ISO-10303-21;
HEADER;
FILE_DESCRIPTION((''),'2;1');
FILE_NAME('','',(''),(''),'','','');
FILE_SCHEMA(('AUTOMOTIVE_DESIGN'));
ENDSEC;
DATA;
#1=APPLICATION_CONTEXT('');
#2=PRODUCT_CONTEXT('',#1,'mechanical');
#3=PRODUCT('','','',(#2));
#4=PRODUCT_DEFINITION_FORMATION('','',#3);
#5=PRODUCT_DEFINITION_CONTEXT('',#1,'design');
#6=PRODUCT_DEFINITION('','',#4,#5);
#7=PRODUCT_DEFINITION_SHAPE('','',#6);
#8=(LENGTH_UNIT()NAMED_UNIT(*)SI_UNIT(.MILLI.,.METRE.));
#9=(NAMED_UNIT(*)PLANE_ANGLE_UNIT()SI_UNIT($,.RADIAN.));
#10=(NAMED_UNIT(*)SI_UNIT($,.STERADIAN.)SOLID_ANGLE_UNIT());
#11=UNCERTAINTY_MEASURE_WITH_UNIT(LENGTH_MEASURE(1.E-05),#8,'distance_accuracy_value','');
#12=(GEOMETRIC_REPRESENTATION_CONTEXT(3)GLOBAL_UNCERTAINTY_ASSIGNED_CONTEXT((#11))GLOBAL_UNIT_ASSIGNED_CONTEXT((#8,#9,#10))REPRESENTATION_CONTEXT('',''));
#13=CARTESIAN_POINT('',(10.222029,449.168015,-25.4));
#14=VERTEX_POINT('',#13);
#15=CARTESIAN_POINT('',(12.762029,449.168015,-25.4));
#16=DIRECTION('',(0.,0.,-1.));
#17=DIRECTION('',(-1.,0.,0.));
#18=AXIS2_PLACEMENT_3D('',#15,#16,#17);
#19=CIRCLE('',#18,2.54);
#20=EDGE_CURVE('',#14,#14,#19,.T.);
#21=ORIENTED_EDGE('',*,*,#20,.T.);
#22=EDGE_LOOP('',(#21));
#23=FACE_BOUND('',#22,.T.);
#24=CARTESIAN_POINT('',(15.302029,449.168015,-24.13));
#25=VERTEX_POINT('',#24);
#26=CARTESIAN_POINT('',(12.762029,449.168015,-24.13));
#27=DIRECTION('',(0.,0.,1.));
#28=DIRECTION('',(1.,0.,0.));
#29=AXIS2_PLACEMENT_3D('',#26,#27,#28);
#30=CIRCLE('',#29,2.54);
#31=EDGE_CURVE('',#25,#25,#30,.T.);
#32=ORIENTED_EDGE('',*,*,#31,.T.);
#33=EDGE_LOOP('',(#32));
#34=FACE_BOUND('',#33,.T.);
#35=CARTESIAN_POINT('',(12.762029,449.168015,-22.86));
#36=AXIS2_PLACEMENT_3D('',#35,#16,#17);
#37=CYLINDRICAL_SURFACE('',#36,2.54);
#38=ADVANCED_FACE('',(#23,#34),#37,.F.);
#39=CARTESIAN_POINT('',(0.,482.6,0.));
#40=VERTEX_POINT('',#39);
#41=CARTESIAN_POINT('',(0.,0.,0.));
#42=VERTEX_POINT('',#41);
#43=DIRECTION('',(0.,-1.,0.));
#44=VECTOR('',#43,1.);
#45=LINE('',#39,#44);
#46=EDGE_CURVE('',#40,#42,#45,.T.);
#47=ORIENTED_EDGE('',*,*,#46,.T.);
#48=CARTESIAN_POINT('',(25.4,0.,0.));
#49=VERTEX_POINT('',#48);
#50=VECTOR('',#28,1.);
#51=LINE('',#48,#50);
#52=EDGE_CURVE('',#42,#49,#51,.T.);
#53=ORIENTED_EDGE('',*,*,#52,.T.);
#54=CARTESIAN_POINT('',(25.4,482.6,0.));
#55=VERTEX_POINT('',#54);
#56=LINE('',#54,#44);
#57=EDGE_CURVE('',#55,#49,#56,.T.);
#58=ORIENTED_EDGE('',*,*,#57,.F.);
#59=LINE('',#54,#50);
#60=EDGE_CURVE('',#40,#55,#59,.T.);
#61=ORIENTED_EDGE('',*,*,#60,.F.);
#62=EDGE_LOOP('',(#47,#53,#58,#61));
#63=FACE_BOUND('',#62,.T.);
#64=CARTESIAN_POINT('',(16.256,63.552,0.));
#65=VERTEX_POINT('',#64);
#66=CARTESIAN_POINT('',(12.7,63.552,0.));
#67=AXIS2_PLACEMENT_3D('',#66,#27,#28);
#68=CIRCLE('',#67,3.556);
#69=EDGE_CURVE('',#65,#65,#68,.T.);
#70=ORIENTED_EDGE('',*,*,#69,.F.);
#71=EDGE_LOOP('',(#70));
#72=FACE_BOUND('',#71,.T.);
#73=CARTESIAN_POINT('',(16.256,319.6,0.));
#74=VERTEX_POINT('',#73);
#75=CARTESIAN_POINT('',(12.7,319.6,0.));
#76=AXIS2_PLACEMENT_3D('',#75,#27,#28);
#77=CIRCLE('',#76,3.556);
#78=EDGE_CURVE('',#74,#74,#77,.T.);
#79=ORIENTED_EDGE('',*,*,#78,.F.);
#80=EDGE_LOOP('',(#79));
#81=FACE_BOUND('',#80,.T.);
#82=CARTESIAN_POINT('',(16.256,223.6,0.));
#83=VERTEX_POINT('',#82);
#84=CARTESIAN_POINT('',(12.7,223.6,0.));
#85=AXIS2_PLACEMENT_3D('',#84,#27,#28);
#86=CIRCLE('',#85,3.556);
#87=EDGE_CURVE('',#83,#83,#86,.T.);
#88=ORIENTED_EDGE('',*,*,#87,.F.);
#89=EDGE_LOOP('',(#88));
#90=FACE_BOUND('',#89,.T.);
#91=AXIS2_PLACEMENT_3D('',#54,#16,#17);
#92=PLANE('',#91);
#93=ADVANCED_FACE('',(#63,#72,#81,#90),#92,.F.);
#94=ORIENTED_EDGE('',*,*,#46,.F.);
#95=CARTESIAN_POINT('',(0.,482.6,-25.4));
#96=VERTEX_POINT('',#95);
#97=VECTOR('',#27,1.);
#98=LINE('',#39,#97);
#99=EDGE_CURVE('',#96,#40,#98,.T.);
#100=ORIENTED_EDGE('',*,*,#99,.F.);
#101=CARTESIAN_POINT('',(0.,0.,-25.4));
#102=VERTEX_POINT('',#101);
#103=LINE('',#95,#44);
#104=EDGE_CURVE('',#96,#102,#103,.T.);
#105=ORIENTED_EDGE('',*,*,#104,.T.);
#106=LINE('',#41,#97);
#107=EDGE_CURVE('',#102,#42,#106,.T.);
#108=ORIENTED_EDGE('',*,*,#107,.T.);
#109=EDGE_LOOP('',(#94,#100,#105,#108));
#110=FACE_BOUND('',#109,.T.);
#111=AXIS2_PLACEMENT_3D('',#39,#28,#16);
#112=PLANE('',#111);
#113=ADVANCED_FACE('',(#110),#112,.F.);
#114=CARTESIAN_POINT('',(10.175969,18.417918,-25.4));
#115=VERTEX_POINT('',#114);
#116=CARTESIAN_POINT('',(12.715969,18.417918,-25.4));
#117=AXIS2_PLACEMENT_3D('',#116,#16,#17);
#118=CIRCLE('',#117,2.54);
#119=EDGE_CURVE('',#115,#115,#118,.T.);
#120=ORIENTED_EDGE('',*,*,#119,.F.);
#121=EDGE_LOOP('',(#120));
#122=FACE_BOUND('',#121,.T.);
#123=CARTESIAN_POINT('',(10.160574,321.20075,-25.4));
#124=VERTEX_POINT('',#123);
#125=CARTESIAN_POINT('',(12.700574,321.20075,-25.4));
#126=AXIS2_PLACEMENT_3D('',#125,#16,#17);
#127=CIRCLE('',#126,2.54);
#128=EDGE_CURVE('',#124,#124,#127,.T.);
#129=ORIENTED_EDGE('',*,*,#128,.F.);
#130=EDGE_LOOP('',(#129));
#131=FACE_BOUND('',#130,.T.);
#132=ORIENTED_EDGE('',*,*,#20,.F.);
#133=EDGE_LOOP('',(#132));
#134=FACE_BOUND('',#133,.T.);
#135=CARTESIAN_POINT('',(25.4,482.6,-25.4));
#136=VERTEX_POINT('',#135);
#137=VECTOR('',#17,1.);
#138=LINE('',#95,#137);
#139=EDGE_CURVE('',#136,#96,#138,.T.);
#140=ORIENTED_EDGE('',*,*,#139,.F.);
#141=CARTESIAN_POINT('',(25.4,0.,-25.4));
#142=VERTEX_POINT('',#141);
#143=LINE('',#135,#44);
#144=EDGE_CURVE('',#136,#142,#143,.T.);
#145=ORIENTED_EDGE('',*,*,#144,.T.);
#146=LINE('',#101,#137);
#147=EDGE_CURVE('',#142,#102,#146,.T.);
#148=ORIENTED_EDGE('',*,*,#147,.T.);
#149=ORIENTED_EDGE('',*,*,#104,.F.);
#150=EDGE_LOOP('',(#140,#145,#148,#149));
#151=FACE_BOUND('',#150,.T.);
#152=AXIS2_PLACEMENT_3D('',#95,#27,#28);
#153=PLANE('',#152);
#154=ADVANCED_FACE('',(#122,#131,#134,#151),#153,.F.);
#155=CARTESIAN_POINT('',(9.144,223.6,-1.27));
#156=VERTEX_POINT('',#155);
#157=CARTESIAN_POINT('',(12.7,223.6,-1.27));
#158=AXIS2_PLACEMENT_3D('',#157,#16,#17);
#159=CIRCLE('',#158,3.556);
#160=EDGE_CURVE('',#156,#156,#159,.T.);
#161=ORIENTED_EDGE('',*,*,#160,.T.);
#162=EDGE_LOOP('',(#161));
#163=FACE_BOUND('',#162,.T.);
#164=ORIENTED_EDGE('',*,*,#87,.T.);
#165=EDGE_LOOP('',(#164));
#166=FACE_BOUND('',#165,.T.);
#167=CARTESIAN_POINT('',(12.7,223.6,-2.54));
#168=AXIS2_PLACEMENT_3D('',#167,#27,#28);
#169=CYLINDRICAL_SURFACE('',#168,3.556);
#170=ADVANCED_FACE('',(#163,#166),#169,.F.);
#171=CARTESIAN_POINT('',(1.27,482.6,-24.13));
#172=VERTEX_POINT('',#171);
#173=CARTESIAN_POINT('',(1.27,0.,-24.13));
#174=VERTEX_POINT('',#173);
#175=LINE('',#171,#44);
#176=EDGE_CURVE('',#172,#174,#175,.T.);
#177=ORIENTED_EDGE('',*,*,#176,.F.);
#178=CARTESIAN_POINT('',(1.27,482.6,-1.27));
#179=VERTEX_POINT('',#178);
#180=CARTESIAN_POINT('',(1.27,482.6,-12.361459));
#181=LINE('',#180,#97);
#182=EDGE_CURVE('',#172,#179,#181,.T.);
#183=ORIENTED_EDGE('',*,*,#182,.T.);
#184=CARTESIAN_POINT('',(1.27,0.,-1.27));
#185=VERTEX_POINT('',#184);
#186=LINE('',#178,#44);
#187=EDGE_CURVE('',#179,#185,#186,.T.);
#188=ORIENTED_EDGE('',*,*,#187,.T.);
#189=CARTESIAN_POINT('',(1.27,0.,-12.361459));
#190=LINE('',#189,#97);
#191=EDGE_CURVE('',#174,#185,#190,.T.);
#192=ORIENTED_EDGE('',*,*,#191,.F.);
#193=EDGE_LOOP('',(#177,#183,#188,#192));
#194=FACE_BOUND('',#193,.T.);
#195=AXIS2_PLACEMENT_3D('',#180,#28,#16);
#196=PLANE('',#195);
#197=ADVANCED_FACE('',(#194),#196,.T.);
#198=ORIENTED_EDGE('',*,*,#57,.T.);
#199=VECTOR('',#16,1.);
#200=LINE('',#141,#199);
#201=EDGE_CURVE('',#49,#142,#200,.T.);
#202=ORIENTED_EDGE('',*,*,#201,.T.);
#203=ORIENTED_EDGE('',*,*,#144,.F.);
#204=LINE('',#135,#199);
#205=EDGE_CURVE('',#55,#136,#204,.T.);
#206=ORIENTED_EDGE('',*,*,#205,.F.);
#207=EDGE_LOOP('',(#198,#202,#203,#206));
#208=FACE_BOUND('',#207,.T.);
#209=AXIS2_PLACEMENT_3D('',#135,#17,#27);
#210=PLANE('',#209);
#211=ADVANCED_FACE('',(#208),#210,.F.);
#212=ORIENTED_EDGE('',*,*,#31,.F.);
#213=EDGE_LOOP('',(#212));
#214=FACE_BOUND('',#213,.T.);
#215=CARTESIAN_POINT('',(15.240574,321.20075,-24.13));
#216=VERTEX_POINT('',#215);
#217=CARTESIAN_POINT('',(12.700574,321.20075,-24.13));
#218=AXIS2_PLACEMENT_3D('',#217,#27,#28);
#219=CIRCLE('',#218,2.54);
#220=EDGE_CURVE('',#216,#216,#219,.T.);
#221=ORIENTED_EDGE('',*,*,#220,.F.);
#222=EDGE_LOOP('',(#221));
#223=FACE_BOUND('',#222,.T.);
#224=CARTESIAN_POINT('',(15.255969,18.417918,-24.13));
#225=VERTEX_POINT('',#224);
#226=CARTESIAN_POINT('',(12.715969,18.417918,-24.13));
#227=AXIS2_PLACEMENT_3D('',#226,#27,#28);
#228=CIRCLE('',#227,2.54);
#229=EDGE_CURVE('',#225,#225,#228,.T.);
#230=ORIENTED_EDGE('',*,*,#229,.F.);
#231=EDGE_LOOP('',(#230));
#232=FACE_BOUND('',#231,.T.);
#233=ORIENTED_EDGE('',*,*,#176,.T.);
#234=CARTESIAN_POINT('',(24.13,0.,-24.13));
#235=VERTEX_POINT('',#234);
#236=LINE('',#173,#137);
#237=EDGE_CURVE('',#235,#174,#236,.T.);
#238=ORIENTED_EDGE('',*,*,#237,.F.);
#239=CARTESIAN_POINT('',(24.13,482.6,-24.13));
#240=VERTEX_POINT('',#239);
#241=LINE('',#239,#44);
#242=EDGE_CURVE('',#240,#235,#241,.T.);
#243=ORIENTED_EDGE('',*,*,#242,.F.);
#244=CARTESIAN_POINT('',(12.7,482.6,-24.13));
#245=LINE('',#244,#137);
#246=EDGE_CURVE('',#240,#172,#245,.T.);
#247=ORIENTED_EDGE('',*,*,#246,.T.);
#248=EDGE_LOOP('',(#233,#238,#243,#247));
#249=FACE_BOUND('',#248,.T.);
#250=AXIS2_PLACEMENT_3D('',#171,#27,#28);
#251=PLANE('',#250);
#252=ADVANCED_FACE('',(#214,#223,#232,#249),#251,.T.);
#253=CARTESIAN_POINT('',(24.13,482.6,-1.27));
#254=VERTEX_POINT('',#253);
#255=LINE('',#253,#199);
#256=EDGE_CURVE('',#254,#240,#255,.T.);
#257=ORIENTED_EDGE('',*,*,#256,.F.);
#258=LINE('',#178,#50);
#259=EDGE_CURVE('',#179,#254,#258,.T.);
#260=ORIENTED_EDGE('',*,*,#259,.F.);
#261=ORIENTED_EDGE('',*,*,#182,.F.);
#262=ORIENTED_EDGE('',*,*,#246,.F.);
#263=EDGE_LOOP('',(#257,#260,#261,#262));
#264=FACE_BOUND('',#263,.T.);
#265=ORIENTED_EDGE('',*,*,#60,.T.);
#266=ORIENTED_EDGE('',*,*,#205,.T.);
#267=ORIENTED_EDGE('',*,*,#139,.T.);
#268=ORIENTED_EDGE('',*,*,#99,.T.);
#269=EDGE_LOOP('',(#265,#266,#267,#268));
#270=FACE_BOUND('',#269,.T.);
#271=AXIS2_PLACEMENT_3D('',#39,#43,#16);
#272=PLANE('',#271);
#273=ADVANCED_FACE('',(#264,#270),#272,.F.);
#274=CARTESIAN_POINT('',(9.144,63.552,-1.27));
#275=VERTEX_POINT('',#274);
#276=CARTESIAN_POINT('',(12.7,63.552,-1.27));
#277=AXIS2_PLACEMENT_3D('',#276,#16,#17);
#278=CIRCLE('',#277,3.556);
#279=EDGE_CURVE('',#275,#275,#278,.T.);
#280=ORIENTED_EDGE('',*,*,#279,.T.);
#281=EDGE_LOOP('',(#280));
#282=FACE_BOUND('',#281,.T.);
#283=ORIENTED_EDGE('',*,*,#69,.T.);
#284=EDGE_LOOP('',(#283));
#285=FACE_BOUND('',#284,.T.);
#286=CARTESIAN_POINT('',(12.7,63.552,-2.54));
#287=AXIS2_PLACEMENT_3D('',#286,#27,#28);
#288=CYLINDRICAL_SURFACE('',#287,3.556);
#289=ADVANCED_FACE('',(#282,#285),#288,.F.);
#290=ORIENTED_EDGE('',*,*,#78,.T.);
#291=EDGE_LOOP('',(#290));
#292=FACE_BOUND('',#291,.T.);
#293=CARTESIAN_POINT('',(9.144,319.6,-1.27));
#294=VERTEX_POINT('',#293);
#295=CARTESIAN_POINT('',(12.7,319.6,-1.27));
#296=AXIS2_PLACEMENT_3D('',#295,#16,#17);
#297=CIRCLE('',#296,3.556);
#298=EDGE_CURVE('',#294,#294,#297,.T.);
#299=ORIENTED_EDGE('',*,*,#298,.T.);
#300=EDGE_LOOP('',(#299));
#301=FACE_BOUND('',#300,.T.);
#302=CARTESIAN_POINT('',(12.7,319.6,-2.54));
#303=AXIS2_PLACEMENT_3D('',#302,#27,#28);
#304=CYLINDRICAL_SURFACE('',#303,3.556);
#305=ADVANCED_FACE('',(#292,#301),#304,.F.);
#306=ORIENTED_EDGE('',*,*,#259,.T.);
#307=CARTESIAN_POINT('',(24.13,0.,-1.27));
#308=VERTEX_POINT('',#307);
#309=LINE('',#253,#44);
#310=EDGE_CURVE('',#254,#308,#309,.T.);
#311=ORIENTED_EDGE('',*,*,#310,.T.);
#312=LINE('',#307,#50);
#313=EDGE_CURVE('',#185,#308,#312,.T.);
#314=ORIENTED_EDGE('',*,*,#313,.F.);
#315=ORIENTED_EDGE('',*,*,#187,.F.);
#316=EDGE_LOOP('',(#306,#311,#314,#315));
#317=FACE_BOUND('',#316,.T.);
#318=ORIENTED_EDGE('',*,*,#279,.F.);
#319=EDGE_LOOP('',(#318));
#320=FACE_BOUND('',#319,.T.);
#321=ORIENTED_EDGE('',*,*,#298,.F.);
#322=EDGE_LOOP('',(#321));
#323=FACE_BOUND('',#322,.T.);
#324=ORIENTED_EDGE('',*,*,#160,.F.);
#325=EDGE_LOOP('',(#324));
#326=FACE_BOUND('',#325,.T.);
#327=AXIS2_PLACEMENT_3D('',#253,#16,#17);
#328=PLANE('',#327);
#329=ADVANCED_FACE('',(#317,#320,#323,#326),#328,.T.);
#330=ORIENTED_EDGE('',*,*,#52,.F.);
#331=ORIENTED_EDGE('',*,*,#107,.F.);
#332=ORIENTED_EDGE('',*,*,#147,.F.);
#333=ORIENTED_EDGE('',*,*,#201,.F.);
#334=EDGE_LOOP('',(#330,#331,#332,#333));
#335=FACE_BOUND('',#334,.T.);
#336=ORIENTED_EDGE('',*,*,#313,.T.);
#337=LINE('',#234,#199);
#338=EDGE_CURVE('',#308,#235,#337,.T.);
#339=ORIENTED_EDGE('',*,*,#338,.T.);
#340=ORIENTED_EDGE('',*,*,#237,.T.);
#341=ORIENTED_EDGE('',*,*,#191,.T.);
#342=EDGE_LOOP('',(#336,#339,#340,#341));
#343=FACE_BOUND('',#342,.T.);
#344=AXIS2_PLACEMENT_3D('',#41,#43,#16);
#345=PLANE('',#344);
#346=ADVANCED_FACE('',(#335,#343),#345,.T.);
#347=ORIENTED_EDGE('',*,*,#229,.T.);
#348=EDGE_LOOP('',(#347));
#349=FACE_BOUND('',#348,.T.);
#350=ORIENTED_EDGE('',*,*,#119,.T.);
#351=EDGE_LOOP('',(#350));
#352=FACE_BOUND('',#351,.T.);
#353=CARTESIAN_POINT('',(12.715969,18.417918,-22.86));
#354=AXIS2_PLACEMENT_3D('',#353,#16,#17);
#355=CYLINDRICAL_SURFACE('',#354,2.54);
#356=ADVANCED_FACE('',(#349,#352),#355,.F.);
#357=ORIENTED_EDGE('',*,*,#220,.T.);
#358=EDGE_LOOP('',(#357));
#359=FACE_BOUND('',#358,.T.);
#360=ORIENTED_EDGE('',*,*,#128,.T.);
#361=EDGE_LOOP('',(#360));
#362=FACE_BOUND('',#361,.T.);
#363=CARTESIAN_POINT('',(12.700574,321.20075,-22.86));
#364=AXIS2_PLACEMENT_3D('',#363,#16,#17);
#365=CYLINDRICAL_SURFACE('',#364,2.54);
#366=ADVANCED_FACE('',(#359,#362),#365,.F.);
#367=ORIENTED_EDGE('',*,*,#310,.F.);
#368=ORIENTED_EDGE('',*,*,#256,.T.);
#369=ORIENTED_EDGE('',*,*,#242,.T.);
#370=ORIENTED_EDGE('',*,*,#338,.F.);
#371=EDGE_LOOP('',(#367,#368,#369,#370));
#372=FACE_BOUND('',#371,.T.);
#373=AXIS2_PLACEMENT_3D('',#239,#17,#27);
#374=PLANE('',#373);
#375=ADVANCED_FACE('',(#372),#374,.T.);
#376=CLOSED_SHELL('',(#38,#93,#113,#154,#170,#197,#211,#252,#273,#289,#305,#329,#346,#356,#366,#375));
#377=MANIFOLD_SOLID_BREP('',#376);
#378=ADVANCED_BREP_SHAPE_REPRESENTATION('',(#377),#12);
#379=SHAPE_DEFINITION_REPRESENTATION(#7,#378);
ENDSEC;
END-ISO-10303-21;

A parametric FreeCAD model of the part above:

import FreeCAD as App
import Part
import Sketcher
from FreeCAD import Vector
Q = App.Units.Quantity

doc = App.newDocument("Part")
body = doc.addObject("PartDesign::Body", "Body")

# Sketch on XZ plane
sketch1 = body.newObject("Sketcher::SketchObject", "Sketch")
sketch1.AttachmentSupport = (doc.getObject("XZ_Plane"), [""])
sketch1.MapMode = "FlatFace"
sketch1.addGeometry([
    Part.LineSegment(Vector(0, -25.4, 0), Vector(0, 0, 0)),  # 0
    Part.LineSegment(Vector(0, 0, 0), Vector(25.4, 0, 0)),  # 1
    Part.LineSegment(Vector(25.4, 0, 0), Vector(25.4, -25.4, 0)),  # 2
    Part.LineSegment(Vector(25.4, -25.4, 0), Vector(0, -25.4, 0)),  # 3
    Part.LineSegment(Vector(1.27, -1.27, 0), Vector(1.27, -24.13, 0)),  # 4
    Part.LineSegment(Vector(1.27, -24.13, 0), Vector(24.13, -24.13, 0)),  # 5
    Part.LineSegment(Vector(24.13, -24.13, 0), Vector(24.13, -1.27, 0)),  # 6
    Part.LineSegment(Vector(24.13, -1.27, 0), Vector(1.27, -1.27, 0)),  # 7
], False)
sketch1.addConstraint([
    Sketcher.Constraint("Coincident", 0, 2, 1, 1),
    Sketcher.Constraint("Coincident", 1, 2, 2, 1),
    Sketcher.Constraint("Coincident", 2, 2, 3, 1),
    Sketcher.Constraint("Coincident", 3, 2, 0, 1),
    Sketcher.Constraint("Coincident", 4, 2, 5, 1),
    Sketcher.Constraint("Coincident", 5, 2, 6, 1),
    Sketcher.Constraint("Coincident", 6, 2, 7, 1),
    Sketcher.Constraint("Coincident", 7, 2, 4, 1),
    Sketcher.Constraint("Vertical", 0),
    Sketcher.Constraint("Horizontal", 1),
    Sketcher.Constraint("Vertical", 2),
    Sketcher.Constraint("Horizontal", 3),
    Sketcher.Constraint("Vertical", 4),
    Sketcher.Constraint("Horizontal", 5),
    Sketcher.Constraint("Vertical", 6),
    Sketcher.Constraint("Horizontal", 7),
    Sketcher.Constraint("Coincident", 0, 2, -1, 1),
    Sketcher.Constraint("Equal", 3, 0),
    Sketcher.Constraint("Equal", 7, 4),
    Sketcher.Constraint("DistanceX", 1, 1, 1, 2, Q("1 in")),
    Sketcher.Constraint("DistanceX", 5, 1, 5, 2, Q("0.9 in")),
    Sketcher.Constraint("DistanceX", -1, 1, 4, 2, Q("0.05 in")),
    Sketcher.Constraint("DistanceY", 4, 2, -1, 1, Q("0.95 in")),
])
pad1 = body.newObject("PartDesign::Pad", "Pad")
pad1.Profile = sketch1
pad1.Length = Q("19 in")
pad1.Reversed = True

# Sketch on XY plane
sketch2 = body.newObject("Sketcher::SketchObject", "Sketch001")
sketch2.AttachmentSupport = (doc.getObject("XY_Plane"), [""])
sketch2.MapMode = "FlatFace"
sketch2.AttachmentOffset = App.Placement(Vector(0, 0, -1 * 25.4), App.Rotation())
sketch2.addGeometry(Part.Circle(Vector(12.762029, 449.168015, 0), Vector(0, 0, 1), 2.54), False)
sketch2.addConstraint([
    Sketcher.Constraint("Diameter", 0, Q("0.2 in")),
    Sketcher.Constraint("DistanceX", -1, 1, 0, 3, 12.762029),
    Sketcher.Constraint("DistanceY", -1, 1, 0, 3, 449.168015),
])
pocket1 = body.newObject("PartDesign::Pocket", "Pocket")
pocket1.Profile = sketch2
pocket1.Length = Q("0.1 in")
pocket1.Reversed = True

# Sketch on XY plane
sketch3 = body.newObject("Sketcher::SketchObject", "Sketch002")
sketch3.AttachmentSupport = (doc.getObject("XY_Plane"), [""])
sketch3.MapMode = "FlatFace"
sketch3.AttachmentOffset = App.Placement(Vector(0, 0, -1 * 25.4), App.Rotation())
sketch3.addGeometry(Part.Circle(Vector(12.700574, 321.20075, 0), Vector(0, 0, 1), 2.54), False)
sketch3.addConstraint([
    Sketcher.Constraint("Diameter", 0, Q("0.2 in")),
    Sketcher.Constraint("DistanceY", -1, 1, 0, 3, 321.20075),
    Sketcher.Constraint("DistanceX", -1, 1, 0, 3, 12.700574),
])
pocket2 = body.newObject("PartDesign::Pocket", "Pocket001")
pocket2.Profile = sketch3
pocket2.Length = Q("0.1 in")
pocket2.Reversed = True

# Sketch on XY plane
sketch4 = body.newObject("Sketcher::SketchObject", "Sketch003")
sketch4.AttachmentSupport = (doc.getObject("XY_Plane"), [""])
sketch4.MapMode = "FlatFace"
sketch4.AttachmentOffset = App.Placement(Vector(0, 0, -1 * 25.4), App.Rotation())
sketch4.addGeometry(Part.Circle(Vector(12.715969, 18.417918, 0), Vector(0, 0, 1), 2.54), False)
sketch4.addConstraint([
    Sketcher.Constraint("Diameter", 0, Q("0.2 in")),
    Sketcher.Constraint("DistanceX", -1, 1, 0, 3, 12.715969),
    Sketcher.Constraint("DistanceY", -1, 1, 0, 3, 18.417918),
])
pocket3 = body.newObject("PartDesign::Pocket", "Pocket002")
pocket3.Profile = sketch4
pocket3.Length = Q("0.1 in")
pocket3.Reversed = True

# Sketch on XY plane
sketch5 = body.newObject("Sketcher::SketchObject", "Sketch004")
sketch5.AttachmentSupport = (doc.getObject("XY_Plane"), [""])
sketch5.MapMode = "FlatFace"
sketch5.addGeometry(Part.Circle(Vector(12.7, 63.552, 0), Vector(0, 0, 1), 3.556), False)
sketch5.addConstraint([
    Sketcher.Constraint("Diameter", 0, Q("0.28 in")),
    Sketcher.Constraint("DistanceX", -1, 1, 0, 3, Q("0.5 in")),
    Sketcher.Constraint("DistanceY", -1, 1, 0, 3, 63.552),
])
pocket4 = body.newObject("PartDesign::Pocket", "Pocket003")
pocket4.Profile = sketch5
pocket4.Length = Q("0.1 in")

# Sketch on XY plane
sketch6 = body.newObject("Sketcher::SketchObject", "Sketch005")
sketch6.AttachmentSupport = (doc.getObject("XY_Plane"), [""])
sketch6.MapMode = "FlatFace"
sketch6.addGeometry([
    Part.Circle(Vector(12.7, 223.6, 0), Vector(0, 0, 1), 3.556),
    Part.Circle(Vector(12.7, 319.6, 0), Vector(0, 0, 1), 3.556),
], False)
sketch6.addConstraint([
    Sketcher.Constraint("Equal", 0, 1),
    Sketcher.Constraint("Vertical", 0, 3, 1, 3),
    Sketcher.Constraint("Diameter", 0, Q("0.28 in")),
    Sketcher.Constraint("DistanceX", -1, 1, 0, 3, Q("0.5 in")),
    Sketcher.Constraint("DistanceY", -1, 1, 0, 3, 223.6),
    Sketcher.Constraint("DistanceY", -1, 1, 1, 3, 319.6),
])
pocket5 = body.newObject("PartDesign::Pocket", "Pocket004")
pocket5.Profile = sketch6
pocket5.Length = Q("0.1 in")

doc.recompute()
